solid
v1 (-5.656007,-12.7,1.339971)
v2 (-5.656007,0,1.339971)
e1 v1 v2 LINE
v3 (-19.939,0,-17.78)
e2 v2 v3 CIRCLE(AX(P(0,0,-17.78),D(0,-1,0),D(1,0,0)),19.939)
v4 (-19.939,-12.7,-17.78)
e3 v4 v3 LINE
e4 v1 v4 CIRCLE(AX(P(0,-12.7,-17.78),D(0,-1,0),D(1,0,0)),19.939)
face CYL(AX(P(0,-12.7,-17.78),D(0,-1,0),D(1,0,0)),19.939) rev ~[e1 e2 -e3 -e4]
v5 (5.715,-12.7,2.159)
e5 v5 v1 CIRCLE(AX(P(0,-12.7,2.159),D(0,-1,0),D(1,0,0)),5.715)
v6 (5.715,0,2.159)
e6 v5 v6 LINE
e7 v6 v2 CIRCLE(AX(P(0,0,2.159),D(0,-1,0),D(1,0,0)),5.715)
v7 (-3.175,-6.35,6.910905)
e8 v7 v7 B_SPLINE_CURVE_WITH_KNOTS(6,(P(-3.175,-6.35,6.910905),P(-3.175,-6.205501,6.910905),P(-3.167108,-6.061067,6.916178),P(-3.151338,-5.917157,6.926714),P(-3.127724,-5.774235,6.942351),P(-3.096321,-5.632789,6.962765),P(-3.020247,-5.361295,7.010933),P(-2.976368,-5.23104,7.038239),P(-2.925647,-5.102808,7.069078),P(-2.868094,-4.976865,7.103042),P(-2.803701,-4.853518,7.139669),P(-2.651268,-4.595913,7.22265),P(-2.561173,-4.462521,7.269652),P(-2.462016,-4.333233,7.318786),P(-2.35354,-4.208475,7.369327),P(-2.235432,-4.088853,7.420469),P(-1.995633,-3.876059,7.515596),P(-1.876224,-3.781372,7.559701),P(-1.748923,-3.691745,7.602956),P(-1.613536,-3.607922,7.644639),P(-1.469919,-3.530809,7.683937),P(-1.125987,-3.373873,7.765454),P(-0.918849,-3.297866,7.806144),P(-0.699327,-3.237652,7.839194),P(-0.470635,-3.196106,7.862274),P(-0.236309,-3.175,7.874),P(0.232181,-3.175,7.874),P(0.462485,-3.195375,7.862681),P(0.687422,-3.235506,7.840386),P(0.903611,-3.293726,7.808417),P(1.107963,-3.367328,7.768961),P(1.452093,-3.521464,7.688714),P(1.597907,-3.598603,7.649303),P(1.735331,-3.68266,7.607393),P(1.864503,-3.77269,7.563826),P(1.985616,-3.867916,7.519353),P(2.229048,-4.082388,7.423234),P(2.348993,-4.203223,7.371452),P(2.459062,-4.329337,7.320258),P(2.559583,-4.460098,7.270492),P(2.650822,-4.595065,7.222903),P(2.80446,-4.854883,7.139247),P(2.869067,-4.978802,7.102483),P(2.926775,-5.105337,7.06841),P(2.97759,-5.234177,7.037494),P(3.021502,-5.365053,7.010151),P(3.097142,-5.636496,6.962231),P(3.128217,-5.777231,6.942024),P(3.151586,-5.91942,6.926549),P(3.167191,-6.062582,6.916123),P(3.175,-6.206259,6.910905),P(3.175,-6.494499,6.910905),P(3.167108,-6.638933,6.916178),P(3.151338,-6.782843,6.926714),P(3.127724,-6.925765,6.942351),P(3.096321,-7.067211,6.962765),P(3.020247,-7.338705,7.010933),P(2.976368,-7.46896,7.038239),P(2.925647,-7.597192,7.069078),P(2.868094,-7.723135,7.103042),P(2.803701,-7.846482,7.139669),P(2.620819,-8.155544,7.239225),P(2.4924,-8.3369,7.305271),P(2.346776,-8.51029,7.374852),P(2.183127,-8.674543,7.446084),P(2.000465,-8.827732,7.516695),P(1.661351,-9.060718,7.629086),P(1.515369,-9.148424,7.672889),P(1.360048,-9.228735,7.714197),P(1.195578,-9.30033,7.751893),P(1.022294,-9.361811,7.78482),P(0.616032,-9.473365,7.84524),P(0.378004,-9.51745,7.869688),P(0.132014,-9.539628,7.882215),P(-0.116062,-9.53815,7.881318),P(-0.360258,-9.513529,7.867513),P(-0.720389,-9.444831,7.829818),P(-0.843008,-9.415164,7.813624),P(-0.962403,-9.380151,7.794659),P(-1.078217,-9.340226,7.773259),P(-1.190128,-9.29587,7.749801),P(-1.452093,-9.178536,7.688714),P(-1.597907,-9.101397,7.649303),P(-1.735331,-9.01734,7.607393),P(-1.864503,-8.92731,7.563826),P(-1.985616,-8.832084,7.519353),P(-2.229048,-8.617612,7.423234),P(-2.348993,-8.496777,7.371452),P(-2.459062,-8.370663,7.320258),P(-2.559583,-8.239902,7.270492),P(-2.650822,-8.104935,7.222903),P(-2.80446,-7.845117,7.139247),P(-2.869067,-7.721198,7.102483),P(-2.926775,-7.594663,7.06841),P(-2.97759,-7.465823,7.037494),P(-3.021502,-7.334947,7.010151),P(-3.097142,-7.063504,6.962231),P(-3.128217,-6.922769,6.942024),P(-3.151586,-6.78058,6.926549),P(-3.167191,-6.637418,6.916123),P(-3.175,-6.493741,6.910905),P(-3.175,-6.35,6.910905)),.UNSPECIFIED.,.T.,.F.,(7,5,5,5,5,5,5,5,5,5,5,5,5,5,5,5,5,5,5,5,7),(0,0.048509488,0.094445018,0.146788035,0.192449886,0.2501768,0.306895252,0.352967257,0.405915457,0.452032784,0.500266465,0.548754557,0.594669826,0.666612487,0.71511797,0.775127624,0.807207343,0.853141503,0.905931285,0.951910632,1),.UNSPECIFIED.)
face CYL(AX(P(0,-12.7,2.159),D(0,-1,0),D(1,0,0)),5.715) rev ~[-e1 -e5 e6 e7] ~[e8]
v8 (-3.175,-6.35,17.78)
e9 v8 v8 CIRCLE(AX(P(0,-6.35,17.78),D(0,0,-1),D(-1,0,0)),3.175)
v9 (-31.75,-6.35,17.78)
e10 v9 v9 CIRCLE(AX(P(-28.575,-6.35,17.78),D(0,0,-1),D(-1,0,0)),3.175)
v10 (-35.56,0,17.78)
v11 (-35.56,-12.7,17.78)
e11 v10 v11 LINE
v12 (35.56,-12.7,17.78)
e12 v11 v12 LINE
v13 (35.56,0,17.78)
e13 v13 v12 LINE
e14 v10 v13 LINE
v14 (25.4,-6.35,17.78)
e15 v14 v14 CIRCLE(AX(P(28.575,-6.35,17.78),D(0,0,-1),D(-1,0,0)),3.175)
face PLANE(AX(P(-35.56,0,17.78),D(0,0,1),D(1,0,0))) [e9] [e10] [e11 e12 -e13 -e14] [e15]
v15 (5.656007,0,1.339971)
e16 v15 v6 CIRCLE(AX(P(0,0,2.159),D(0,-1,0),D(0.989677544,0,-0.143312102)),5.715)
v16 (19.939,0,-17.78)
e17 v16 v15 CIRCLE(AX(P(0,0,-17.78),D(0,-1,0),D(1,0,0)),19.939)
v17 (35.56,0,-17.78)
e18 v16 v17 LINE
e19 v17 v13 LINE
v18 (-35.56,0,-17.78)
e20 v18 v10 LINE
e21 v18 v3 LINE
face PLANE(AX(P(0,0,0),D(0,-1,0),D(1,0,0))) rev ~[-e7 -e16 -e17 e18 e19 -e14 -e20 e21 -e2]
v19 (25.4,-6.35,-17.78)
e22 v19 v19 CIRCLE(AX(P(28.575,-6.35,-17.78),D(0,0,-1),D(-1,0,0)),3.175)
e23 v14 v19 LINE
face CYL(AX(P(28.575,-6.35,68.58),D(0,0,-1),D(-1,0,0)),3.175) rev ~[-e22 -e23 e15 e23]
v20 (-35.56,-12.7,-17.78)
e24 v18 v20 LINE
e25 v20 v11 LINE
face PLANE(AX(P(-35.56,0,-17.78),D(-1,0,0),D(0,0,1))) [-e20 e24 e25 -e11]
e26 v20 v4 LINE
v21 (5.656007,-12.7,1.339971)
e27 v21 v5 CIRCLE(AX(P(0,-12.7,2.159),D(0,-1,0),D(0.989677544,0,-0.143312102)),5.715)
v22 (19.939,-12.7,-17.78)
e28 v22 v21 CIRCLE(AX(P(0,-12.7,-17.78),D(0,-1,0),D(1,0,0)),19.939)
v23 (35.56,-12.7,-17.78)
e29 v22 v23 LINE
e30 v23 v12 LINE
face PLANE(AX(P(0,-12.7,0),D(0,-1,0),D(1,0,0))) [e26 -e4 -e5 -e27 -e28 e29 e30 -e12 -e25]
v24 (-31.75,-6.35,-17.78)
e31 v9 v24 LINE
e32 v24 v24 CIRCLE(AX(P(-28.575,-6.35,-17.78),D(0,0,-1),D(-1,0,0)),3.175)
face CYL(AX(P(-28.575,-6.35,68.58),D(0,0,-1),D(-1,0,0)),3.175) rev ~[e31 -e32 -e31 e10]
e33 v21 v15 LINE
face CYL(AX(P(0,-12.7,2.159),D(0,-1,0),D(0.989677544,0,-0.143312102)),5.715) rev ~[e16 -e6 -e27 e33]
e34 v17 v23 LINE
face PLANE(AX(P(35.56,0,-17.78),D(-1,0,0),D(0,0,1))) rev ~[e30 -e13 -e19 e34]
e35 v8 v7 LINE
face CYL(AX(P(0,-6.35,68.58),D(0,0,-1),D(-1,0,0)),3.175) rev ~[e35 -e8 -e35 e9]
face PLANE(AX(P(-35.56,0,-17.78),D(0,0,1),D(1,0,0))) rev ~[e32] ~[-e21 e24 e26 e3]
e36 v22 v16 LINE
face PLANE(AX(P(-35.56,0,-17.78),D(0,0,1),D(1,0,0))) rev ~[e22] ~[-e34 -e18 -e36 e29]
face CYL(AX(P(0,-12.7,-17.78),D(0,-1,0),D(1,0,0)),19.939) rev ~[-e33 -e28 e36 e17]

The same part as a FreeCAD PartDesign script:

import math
import FreeCAD as App
import Part
import Sketcher

V = App.Vector
Q = App.Units.Quantity

doc = App.newDocument("Part")
params = doc.addObject("Spreadsheet::Sheet", "Params")
for row, (alias, value) in enumerate([
    ("sketch1_width", "2.8 in"),
    ("sketch1_height", "1.4 in"),
    ("pad1_length", "0.5 in"),
    ("sketch2_radius", "0.785 in"),
    ("sketch3_radius", "0.225 in"),
    ("sketch3_radius2", "0.785 in"),
    ("pocket2_length", "1 in"),
    ("sketch4_diameter", "0.25 in"),
    ("hole_diameter", "0.25 in"),
    ("hole_depth", "2 in"),
], start=1):
    params.set(f"A{row}", alias)
    params.set(f"B{row}", "=" + value)
    params.setAlias(f"B{row}", alias)

body = doc.addObject("PartDesign::Body", "Body")

sketch1 = doc.addObject("Sketcher::SketchObject", "Sketch")
body.addObject(sketch1)
sketch1.AttachmentSupport = (doc.XZ_Plane, [""])
sketch1.MapMode = "FlatFace"
sketch1.addGeometry([
    Part.LineSegment(V(-36, 18, 0), V(-36, -18, 0)),
    Part.LineSegment(V(-36, -18, 0), V(36, -18, 0)),
    Part.LineSegment(V(36, -18, 0), V(36, 18, 0)),
    Part.LineSegment(V(36, 18, 0), V(-36, 18, 0)),
], False)
sketch1.addConstraint([
    Sketcher.Constraint("Coincident", 0, 2, 1, 1),
    Sketcher.Constraint("Coincident", 1, 2, 2, 1),
    Sketcher.Constraint("Coincident", 2, 2, 3, 1),
    Sketcher.Constraint("Coincident", 3, 2, 0, 1),
    Sketcher.Constraint("Vertical", 0),
    Sketcher.Constraint("Horizontal", 1),
    Sketcher.Constraint("Vertical", 2),
    Sketcher.Constraint("Horizontal", 3),
    Sketcher.Constraint("Symmetric", 0, 2, 2, 2, -1, 1),
    Sketcher.Constraint("DistanceX", 1, 1, 1, 2, Q("2.8 in")),
    Sketcher.Constraint("DistanceY", 0, 2, 0, 1, Q("1.4 in")),
])
sketch1.setExpression("Constraints[9]", "Params.sketch1_width")
sketch1.setExpression("Constraints[10]", "Params.sketch1_height")
pad1 = doc.addObject("PartDesign::Pad", "Pad")
body.addObject(pad1)
pad1.Profile = sketch1
pad1.setExpression("Length", "Params.pad1_length")

sketch2 = doc.addObject("Sketcher::SketchObject", "Sketch001")
body.addObject(sketch2)
sketch2.AttachmentSupport = (doc.XZ_Plane, [""])
sketch2.MapMode = "FlatFace"
sketch2.AttachmentOffset = App.Placement(V(0, 0, 0.5 * 25.4), App.Rotation())
sketch2.addGeometry([
    Part.LineSegment(V(-20, -18, 0), V(20, -18, 0)),
    Part.ArcOfCircle(Part.Circle(V(0, -18, 0), V(0, 0, 1), 20), math.radians(0), math.radians(180)),
], False)
sketch2.addConstraint([
    Sketcher.Constraint("Coincident", 0, 1, 1, 2),
    Sketcher.Constraint("Coincident", 1, 1, 0, 2),
    Sketcher.Constraint("Horizontal", 0),
    Sketcher.Constraint("PointOnObject", 1, 3, -2),
    Sketcher.Constraint("Horizontal", 1, 3, 0, 1),
    Sketcher.Constraint("Radius", 1, Q("0.785 in")),
    Sketcher.Constraint("DistanceY", 1, 3, -1, 1, Q("0.7 in")),
])
sketch2.setExpression("Constraints[5]", "Params.sketch2_radius")
pocket1 = doc.addObject("PartDesign::Pocket", "Pocket")
body.addObject(pocket1)
pocket1.Profile = sketch2
pocket1.Type = "ThroughAll"

sketch3 = doc.addObject("Sketcher::SketchObject", "Sketch002")
body.addObject(sketch3)
sketch3.AttachmentSupport = (doc.XZ_Plane, [""])
sketch3.MapMode = "FlatFace"
sketch3.AttachmentOffset = App.Placement(V(0, 0, 0.5 * 25.4), App.Rotation())
sketch3.addGeometry([
    Part.ArcOfCircle(Part.Circle(V(0, 2.2, 0), V(0, 0, 1), 5.7), math.radians(-8.24), math.radians(0)),
    Part.ArcOfCircle(Part.Circle(V(0, 2.2, 0), V(0, 0, 1), 5.7), math.radians(0), math.radians(188)),
    Part.ArcOfCircle(Part.Circle(V(0, -17.8, 0), V(0, 0, 1), 19.9), math.radians(74), math.radians(106)),
], False)
sketch3.addConstraint([
    Sketcher.Constraint("Tangent", 0, 2, 1, 1),
    Sketcher.Constraint("Coincident", 1, 2, 2, 2),
    Sketcher.Constraint("Coincident", 2, 1, 0, 1),
    Sketcher.Constraint("Equal", 0, 1),
    Sketcher.Constraint("Symmetric", 1, 2, 2, 1, -2),
    Sketcher.Constraint("Horizontal", 1, 3, 0, 2),
    Sketcher.Constraint("Radius", 0, Q("0.225 in")),
    Sketcher.Constraint("Radius", 2, Q("0.785 in")),
    Sketcher.Constraint("DistanceY", 2, 3, -1, 1, Q("0.7 in")),
    Sketcher.Constraint("DistanceY", -1, 1, 0, 3, Q("0.085 in")),
])
sketch3.setExpression("Constraints[6]", "Params.sketch3_radius")
sketch3.setExpression("Constraints[7]", "Params.sketch3_radius2")
pocket2 = doc.addObject("PartDesign::Pocket", "Pocket001")
body.addObject(pocket2)
pocket2.Profile = sketch3
pocket2.setExpression("Length", "Params.pocket2_length")

sketch4 = doc.addObject("Sketcher::SketchObject", "Sketch003")
body.addObject(sketch4)
sketch4.AttachmentSupport = (doc.XY_Plane, [""])
sketch4.MapMode = "FlatFace"
sketch4.AttachmentOffset = App.Placement(V(0, 0, 0.7 * 25.4), App.Rotation())
sketch4.addGeometry([
    Part.Circle(V(-28.6, -6.3, 0), V(0, 0, 1), 3.2),
    Part.Circle(V(0, -6.3, 0), V(0, 0, 1), 3.2),
    Part.Circle(V(28.6, -6.3, 0), V(0, 0, 1), 3.2),
], False)
sketch4.addConstraint([
    Sketcher.Constraint("Equal", 0, 1),
    Sketcher.Constraint("Equal", 1, 2),
    Sketcher.Constraint("Symmetric", 0, 3, 2, 3, -2),
    Sketcher.Constraint("PointOnObject", 1, 3, -2),
    Sketcher.Constraint("Horizontal", 0, 3, 1, 3),
    Sketcher.Constraint("Diameter", 0, Q("0.25 in")),
    Sketcher.Constraint("DistanceY", 0, 3, -1, 1, Q("0.25 in")),
    Sketcher.Constraint("DistanceX", 0, 3, 2, 3, Q("2.25 in")),
])
sketch4.setExpression("Constraints[5]", "Params.sketch4_diameter")
doc.recompute()
hole = doc.addObject("PartDesign::Hole", "Hole")
body.addObject(hole)
hole.Profile = sketch4
hole.ThreadType = "None"
hole.setExpression("Diameter", "Params.hole_diameter")
hole.DepthType = "Dimension"
hole.setExpression("Depth", "Params.hole_depth")
hole.DrillPoint = "Angled"
hole.DrillPointAngle = 118

doc.recompute()
